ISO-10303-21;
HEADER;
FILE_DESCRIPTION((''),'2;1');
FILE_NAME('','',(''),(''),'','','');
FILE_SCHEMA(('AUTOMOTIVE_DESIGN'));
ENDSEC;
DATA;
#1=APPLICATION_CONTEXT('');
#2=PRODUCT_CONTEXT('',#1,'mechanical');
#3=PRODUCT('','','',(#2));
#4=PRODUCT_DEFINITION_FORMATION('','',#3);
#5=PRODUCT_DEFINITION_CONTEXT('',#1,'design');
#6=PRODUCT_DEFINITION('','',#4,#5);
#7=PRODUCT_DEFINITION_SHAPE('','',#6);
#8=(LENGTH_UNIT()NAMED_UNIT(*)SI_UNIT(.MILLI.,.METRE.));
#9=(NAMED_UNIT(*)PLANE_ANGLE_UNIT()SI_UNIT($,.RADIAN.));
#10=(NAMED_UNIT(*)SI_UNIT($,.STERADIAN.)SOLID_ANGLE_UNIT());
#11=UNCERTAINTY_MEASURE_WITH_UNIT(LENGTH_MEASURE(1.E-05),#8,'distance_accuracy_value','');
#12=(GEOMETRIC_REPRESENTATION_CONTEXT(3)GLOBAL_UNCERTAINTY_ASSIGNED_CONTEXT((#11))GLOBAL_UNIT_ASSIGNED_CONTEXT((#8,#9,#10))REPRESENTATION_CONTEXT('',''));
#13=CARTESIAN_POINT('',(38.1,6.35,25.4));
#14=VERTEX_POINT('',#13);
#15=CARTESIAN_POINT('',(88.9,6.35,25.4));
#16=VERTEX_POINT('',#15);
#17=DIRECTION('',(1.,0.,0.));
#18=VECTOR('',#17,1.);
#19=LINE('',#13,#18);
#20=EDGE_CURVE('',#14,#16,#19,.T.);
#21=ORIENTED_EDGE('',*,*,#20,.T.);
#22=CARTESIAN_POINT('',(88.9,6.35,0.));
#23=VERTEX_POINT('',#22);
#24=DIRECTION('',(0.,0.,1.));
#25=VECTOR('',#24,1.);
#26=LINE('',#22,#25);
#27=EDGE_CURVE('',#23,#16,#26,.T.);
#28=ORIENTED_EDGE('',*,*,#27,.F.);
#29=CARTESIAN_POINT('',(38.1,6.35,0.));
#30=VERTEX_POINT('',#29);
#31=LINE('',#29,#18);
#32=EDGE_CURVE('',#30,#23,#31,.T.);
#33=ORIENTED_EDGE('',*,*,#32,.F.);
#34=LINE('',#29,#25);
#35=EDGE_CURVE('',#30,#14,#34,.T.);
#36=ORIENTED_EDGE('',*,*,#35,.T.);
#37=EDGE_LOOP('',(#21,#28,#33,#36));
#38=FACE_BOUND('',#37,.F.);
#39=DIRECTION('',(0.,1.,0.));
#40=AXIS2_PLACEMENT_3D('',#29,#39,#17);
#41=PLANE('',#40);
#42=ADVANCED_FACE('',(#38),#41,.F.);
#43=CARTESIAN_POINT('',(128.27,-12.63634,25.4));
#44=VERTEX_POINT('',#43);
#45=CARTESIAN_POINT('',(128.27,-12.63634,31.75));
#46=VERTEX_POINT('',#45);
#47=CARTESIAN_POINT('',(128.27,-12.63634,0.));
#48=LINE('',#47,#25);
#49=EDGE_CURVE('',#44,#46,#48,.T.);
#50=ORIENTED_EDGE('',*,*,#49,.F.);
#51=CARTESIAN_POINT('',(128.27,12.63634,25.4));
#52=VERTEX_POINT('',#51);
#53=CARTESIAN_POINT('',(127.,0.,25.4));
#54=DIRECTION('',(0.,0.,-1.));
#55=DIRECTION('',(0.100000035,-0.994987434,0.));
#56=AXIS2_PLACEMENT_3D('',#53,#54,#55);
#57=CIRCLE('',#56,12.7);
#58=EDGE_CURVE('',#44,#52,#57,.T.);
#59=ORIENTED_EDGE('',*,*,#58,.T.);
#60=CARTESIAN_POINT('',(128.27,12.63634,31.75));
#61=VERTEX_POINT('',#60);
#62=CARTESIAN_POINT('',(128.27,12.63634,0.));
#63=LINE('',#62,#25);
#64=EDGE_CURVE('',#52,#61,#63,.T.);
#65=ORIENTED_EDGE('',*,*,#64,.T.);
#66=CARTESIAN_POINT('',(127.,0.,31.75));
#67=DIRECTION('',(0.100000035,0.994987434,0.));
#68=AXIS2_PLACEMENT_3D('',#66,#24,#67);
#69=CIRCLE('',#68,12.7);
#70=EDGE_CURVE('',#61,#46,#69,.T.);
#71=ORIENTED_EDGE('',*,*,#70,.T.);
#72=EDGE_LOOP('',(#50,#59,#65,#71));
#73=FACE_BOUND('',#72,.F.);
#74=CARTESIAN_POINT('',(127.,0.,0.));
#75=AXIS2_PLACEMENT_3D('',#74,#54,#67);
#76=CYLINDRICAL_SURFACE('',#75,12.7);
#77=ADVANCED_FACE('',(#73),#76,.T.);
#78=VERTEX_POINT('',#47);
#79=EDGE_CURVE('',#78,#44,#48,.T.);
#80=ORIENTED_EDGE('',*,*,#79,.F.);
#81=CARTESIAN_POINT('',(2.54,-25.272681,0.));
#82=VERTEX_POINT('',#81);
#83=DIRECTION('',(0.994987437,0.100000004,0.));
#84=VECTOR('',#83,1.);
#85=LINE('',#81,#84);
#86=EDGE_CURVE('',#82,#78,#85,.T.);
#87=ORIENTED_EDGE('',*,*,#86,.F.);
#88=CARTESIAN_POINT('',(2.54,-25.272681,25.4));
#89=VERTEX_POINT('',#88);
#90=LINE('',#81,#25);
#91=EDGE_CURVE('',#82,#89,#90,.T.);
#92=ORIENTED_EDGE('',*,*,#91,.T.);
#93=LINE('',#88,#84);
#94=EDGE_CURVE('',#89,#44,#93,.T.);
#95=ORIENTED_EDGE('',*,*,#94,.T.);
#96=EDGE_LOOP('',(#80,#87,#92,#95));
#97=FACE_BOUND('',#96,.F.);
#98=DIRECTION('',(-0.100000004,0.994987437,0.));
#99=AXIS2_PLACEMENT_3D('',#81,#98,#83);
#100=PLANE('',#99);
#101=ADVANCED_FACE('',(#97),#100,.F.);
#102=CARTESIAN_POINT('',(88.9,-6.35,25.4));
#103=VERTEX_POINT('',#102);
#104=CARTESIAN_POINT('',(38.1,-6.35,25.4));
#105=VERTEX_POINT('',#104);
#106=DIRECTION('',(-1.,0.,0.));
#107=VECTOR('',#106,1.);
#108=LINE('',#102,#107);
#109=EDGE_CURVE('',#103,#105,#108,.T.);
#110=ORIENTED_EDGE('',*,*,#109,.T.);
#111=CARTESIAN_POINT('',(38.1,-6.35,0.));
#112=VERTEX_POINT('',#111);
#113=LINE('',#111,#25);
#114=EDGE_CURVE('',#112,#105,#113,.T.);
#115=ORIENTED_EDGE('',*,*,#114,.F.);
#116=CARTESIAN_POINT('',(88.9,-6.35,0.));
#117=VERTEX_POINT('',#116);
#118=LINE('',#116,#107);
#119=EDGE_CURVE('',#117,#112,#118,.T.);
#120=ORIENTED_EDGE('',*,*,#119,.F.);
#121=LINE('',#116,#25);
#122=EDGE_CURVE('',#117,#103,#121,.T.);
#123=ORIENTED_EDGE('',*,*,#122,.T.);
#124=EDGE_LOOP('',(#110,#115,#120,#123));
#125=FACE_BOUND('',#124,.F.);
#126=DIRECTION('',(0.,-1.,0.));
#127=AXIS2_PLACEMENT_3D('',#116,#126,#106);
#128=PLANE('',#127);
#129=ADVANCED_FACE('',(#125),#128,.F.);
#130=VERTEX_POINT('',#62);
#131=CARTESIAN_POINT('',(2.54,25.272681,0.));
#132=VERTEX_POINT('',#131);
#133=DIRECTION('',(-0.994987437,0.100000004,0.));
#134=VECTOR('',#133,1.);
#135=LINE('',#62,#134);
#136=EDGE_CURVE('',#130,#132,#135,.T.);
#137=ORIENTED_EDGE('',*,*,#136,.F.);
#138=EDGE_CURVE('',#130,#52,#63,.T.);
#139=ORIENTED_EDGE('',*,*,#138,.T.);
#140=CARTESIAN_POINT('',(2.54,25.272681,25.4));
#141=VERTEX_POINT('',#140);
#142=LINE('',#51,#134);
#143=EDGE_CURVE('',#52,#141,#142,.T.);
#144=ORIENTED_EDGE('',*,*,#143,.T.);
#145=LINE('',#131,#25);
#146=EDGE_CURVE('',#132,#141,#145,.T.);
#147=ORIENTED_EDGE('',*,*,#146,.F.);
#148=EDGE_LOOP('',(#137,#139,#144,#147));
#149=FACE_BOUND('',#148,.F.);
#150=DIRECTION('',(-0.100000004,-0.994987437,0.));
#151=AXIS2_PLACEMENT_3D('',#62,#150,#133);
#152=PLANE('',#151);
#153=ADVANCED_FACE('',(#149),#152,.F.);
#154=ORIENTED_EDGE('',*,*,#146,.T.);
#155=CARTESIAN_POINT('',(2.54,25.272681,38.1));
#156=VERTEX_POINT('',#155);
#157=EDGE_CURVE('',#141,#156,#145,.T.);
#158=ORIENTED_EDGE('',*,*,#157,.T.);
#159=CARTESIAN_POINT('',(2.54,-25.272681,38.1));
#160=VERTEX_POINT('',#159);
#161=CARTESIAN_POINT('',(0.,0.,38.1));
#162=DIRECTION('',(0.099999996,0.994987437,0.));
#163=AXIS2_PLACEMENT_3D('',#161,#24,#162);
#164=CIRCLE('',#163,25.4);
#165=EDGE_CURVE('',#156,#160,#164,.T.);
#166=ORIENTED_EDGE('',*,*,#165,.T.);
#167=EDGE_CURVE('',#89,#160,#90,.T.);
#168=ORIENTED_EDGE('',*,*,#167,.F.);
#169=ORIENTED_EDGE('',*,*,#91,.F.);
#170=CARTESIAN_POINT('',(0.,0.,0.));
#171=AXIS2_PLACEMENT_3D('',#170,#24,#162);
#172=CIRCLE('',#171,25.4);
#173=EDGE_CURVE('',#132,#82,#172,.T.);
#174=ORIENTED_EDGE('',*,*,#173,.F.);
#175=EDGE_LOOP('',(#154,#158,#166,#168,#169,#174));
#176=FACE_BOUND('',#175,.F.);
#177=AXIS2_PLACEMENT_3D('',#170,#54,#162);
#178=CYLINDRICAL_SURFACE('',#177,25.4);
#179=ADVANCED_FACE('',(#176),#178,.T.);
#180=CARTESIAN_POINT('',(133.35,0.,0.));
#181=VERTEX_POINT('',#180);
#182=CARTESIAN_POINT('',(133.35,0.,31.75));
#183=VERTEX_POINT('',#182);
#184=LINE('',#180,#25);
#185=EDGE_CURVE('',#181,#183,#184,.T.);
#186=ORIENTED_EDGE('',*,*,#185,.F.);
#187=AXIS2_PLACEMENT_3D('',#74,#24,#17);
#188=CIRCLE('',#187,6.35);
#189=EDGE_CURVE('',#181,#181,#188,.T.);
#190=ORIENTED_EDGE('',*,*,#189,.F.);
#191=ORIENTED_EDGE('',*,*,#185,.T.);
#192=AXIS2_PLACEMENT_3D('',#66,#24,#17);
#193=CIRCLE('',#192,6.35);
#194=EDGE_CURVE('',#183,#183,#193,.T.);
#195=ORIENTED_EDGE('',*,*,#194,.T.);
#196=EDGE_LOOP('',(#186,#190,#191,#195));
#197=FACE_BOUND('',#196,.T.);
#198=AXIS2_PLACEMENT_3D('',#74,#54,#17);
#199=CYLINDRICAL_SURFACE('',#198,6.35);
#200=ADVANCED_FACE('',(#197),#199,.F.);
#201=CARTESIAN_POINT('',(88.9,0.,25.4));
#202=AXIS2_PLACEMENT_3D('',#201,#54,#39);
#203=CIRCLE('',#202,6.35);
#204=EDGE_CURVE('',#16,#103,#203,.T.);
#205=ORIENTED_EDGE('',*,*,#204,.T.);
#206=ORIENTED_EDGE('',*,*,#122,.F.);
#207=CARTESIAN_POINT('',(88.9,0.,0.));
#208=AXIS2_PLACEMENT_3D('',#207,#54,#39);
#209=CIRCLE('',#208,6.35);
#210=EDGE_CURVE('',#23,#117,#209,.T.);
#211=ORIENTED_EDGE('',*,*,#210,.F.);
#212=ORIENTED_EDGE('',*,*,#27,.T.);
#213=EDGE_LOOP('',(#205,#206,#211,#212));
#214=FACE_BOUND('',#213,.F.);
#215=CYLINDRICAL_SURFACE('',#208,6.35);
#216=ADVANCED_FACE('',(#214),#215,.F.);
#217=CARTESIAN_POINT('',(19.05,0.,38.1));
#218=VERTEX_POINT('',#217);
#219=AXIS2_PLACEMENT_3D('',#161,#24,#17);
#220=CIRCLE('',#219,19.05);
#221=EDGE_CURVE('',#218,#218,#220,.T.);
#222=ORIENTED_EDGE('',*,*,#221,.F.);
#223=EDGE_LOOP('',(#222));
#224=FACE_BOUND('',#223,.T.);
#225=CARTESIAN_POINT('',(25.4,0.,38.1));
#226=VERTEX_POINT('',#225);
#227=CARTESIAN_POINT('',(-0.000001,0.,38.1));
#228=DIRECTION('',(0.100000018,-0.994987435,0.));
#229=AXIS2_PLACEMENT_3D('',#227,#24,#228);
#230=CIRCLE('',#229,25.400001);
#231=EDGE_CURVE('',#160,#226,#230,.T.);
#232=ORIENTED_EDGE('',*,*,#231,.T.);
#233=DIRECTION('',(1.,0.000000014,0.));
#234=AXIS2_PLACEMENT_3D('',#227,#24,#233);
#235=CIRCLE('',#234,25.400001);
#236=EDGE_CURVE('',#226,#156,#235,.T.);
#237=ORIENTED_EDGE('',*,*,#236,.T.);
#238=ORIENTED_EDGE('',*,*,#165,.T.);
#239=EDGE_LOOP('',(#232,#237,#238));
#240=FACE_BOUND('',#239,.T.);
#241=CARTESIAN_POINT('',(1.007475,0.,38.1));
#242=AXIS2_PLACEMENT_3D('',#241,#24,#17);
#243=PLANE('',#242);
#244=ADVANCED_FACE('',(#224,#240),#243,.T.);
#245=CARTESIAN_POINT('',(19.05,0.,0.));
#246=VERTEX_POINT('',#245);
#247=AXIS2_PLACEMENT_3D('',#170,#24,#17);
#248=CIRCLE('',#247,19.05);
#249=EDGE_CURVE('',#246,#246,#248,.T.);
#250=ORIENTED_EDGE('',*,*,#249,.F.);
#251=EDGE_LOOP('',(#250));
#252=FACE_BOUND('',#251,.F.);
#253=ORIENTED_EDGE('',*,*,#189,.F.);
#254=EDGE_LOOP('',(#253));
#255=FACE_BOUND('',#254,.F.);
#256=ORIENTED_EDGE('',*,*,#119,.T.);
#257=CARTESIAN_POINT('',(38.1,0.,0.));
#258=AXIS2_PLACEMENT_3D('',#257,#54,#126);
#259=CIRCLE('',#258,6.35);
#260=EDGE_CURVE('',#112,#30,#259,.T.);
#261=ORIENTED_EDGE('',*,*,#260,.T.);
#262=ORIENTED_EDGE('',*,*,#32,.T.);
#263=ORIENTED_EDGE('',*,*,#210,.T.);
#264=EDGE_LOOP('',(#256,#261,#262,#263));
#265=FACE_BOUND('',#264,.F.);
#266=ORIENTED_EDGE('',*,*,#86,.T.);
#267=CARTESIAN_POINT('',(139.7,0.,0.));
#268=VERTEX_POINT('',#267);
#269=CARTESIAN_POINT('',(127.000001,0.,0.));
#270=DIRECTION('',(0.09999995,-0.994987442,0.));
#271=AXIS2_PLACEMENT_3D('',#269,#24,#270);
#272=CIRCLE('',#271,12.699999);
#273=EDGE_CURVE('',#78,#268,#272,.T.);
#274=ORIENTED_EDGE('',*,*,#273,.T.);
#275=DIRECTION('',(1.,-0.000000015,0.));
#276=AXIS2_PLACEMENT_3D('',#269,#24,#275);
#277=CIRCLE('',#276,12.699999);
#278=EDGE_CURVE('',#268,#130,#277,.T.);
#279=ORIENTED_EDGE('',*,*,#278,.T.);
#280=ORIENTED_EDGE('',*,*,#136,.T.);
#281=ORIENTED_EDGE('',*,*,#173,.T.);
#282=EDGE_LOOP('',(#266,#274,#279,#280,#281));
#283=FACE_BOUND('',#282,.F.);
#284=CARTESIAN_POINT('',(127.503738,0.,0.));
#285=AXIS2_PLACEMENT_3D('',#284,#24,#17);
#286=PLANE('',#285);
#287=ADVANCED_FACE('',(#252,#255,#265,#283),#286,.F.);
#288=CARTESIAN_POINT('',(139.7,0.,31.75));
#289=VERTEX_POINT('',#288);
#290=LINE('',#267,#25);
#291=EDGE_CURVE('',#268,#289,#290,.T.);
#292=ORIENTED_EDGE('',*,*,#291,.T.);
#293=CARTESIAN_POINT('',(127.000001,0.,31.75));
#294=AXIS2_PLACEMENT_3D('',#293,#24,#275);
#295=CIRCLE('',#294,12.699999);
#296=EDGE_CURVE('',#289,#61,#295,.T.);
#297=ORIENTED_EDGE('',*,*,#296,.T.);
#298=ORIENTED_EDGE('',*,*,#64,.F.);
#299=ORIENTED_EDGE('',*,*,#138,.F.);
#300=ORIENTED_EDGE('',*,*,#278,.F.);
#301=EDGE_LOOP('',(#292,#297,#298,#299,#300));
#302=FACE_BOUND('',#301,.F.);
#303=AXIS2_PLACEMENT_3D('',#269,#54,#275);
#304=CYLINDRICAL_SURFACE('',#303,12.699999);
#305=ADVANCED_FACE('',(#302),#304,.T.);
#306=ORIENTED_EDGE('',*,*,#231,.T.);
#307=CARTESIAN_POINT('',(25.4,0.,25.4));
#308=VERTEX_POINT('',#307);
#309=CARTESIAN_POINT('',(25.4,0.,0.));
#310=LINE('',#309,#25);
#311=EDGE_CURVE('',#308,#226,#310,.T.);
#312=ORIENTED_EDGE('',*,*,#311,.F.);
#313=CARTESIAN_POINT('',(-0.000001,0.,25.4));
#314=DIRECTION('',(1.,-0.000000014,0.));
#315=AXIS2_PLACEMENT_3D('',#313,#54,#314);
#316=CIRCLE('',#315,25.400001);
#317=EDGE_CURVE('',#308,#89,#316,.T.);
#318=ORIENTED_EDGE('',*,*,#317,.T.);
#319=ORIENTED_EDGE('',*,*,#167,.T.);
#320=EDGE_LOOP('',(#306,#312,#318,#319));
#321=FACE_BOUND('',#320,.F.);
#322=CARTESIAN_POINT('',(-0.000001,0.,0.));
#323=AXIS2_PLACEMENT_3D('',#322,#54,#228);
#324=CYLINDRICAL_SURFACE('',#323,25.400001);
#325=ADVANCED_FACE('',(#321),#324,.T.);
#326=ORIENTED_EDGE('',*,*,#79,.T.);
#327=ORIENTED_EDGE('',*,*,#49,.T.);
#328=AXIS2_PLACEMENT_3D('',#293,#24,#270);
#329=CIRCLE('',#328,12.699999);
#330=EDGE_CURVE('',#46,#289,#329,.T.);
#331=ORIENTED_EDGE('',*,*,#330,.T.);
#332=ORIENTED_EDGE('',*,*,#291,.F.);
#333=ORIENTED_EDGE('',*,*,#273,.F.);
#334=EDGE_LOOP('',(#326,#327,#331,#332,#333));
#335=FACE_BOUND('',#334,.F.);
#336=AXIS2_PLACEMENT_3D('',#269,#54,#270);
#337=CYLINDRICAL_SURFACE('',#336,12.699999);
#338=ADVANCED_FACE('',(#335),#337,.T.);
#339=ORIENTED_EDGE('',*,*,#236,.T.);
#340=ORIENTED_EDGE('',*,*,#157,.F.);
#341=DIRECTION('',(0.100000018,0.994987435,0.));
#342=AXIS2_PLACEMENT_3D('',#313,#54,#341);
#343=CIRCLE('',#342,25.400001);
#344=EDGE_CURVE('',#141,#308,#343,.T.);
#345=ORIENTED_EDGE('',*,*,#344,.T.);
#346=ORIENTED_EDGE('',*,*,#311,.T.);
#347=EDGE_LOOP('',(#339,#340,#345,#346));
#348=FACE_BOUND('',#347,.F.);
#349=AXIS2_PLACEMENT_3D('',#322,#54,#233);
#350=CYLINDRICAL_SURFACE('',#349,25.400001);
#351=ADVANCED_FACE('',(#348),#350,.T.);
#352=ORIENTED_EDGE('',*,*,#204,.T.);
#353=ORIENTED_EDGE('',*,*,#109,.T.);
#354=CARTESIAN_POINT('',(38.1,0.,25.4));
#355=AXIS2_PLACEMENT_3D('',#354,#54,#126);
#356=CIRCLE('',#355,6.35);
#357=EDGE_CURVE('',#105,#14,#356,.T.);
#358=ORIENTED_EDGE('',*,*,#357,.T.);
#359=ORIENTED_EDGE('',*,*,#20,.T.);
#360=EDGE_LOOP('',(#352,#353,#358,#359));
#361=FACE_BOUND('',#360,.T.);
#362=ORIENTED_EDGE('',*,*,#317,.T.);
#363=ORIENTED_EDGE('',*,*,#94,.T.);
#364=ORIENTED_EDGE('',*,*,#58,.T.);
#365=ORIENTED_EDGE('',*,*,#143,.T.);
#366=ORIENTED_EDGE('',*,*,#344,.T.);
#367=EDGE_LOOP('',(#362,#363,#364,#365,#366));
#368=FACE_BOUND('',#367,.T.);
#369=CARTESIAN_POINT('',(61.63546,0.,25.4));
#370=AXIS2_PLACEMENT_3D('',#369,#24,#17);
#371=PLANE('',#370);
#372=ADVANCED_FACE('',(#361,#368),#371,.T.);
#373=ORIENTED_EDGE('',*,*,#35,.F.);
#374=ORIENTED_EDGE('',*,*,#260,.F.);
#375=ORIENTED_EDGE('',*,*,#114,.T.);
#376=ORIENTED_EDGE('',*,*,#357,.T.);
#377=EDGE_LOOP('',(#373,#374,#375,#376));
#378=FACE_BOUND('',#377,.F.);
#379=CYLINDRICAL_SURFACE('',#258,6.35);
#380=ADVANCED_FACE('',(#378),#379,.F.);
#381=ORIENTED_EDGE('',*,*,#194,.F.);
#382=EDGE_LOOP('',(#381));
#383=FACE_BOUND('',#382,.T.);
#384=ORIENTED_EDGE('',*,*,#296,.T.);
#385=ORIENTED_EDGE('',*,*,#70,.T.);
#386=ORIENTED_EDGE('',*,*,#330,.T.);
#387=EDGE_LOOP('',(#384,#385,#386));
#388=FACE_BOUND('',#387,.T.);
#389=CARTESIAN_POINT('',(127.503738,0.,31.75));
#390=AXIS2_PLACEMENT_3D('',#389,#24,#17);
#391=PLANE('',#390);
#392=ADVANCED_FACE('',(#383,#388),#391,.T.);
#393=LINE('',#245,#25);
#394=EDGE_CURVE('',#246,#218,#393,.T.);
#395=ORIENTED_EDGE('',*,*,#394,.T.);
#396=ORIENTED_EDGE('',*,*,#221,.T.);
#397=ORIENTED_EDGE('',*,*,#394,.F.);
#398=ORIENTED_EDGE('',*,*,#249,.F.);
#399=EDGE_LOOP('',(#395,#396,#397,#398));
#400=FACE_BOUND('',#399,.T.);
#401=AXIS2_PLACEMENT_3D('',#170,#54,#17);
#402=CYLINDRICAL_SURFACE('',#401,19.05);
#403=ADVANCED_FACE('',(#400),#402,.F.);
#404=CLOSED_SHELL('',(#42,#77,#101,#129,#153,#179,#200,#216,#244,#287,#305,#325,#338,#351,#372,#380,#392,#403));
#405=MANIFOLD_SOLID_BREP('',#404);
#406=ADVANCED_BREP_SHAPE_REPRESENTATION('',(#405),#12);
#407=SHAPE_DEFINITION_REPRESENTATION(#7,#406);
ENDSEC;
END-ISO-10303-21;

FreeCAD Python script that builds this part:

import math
import FreeCAD as App
import Part
import Sketcher
Q = App.Units.Quantity

doc = App.newDocument("Part")
params = doc.addObject("Spreadsheet::Sheet", "Params")
for row, (alias, value) in enumerate([
    ("sketch1_radius", "1 in"),
    ("sketch1_diameter", "1.5 in"),
    ("pad1_length", "1.5 in"),
    ("sketch2_radius", "1 in"),
    ("sketch2_radius2", "0.5 in"),
    ("sketch2_width", "2 in"),
    ("sketch2_radius3", "0.25 in"),
    ("pad2_length", "1 in"),
    ("sketch3_diameter", "0.5 in"),
    ("sketch3_radius", "0.5 in"),
    ("pad3_length", "1.25 in"),
], start=1):
    params.set(f"A{row}", alias)
    params.set(f"B{row}", "=" + value)
    params.setAlias(f"B{row}", alias)

body = doc.addObject("PartDesign::Body", "Body")

sketch1 = body.newObject("Sketcher::SketchObject", "Sketch")
sketch1.AttachmentSupport = (doc.getObject("XY_Plane"), [""])
sketch1.MapMode = "FlatFace"
sketch1.addGeometry([
    Part.ArcOfCircle(Part.Circle(App.Vector(0, 0, 0), App.Vector(0, 0, 1), 25), math.radians(-84), math.radians(0)),
    Part.ArcOfCircle(Part.Circle(App.Vector(0, 0, 0), App.Vector(0, 0, 1), 25), math.radians(0), math.radians(84)),
    Part.ArcOfCircle(Part.Circle(App.Vector(0, 0, 0), App.Vector(0, 0, 1), 25), math.radians(84), math.radians(276)),
    Part.Circle(App.Vector(0, 0, 0), App.Vector(0, 0, 1), 19),
], False)
sketch1.addConstraint([
    Sketcher.Constraint("Tangent", 0, 2, 1, 1),
    Sketcher.Constraint("Tangent", 1, 2, 2, 1),
    Sketcher.Constraint("Tangent", 2, 2, 0, 1),
    Sketcher.Constraint("Coincident", 0, 3, -1, 1),
    Sketcher.Constraint("Coincident", 3, 3, -1, 1),
    Sketcher.Constraint("PointOnObject", 0, 2, -1),
    Sketcher.Constraint("Vertical", 1, 2, 2, 2),
    Sketcher.Constraint("Radius", 0, Q("1 in")),
    Sketcher.Constraint("Diameter", 3, Q("1.5 in")),
    Sketcher.Constraint("DistanceX", -1, 1, 1, 2, Q("0.1 in")),
])
sketch1.setExpression("Constraints[7]", "Params.sketch1_radius")
sketch1.setExpression("Constraints[8]", "Params.sketch1_diameter")
pad1 = body.newObject("PartDesign::Pad", "Pad")
pad1.Profile = sketch1
pad1.setExpression("Length", "Params.pad1_length")

sketch2 = body.newObject("Sketcher::SketchObject", "Sketch001")
sketch2.AttachmentSupport = (doc.getObject("XY_Plane"), [""])
sketch2.MapMode = "FlatFace"
sketch2.addGeometry([
    Part.ArcOfCircle(Part.Circle(App.Vector(0, 0, 0), App.Vector(0, 0, 1), 25), math.radians(0), math.radians(84)),
    Part.ArcOfCircle(Part.Circle(App.Vector(0, 0, 0), App.Vector(0, 0, 1), 25), math.radians(-84), math.radians(0)),
    Part.LineSegment(App.Vector(3, -25, 0), App.Vector(128, -13, 0)),
    Part.ArcOfCircle(Part.Circle(App.Vector(127, 0, 0), App.Vector(0, 0, 1), 13), math.radians(84), math.radians(276)),
    Part.LineSegment(App.Vector(128, 13, 0), App.Vector(3, 25, 0)),
    Part.LineSegment(App.Vector(89, -6, 0), App.Vector(38, -6, 0)),
    Part.ArcOfCircle(Part.Circle(App.Vector(38, 0, 0), App.Vector(0, 0, 1), 6), math.radians(90), math.radians(270)),
    Part.LineSegment(App.Vector(38, 6, 0), App.Vector(89, 6, 0)),
    Part.ArcOfCircle(Part.Circle(App.Vector(89, 0, 0), App.Vector(0, 0, 1), 6), math.radians(-90), math.radians(90)),
], False)
sketch2.addConstraint([
    Sketcher.Constraint("Tangent", 0, 1, 1, 2),
    Sketcher.Constraint("Tangent", 1, 1, 2, 1),
    Sketcher.Constraint("Tangent", 2, 2, 3, 2),
    Sketcher.Constraint("Tangent", 3, 1, 4, 1),
    Sketcher.Constraint("Tangent", 4, 2, 0, 2),
    Sketcher.Constraint("Tangent", 5, 2, 6, 2),
    Sketcher.Constraint("Tangent", 6, 1, 7, 1),
    Sketcher.Constraint("Tangent", 7, 2, 8, 2),
    Sketcher.Constraint("Tangent", 8, 1, 5, 1),
    Sketcher.Constraint("Horizontal", 5),
    Sketcher.Constraint("Horizontal", 7),
    Sketcher.Constraint("Coincident", 0, 3, -1, 1),
    Sketcher.Constraint("Equal", 0, 1),
    Sketcher.Constraint("PointOnObject", 3, 3, -1),
    Sketcher.Constraint("PointOnObject", 6, 3, -1),
    Sketcher.Constraint("PointOnObject", 0, 1, -1),
    Sketcher.Constraint("Radius", 0, Q("1 in")),
    Sketcher.Constraint("Radius", 3, Q("0.5 in")),
    Sketcher.Constraint("DistanceX", 5, 2, 5, 1, Q("2 in")),
    Sketcher.Constraint("Radius", 6, Q("0.25 in")),
    Sketcher.Constraint("DistanceX", -1, 1, 3, 3, Q("5 in")),
    Sketcher.Constraint("DistanceX", -1, 1, 6, 3, Q("1.5 in")),
])
sketch2.setExpression("Constraints[16]", "Params.sketch2_radius")
sketch2.setExpression("Constraints[17]", "Params.sketch2_radius2")
sketch2.setExpression("Constraints[18]", "Params.sketch2_width")
sketch2.setExpression("Constraints[19]", "Params.sketch2_radius3")
pad2 = body.newObject("PartDesign::Pad", "Pad001")
pad2.Profile = sketch2
pad2.setExpression("Length", "Params.pad2_length")

sketch3 = body.newObject("Sketcher::SketchObject", "Sketch002")
sketch3.AttachmentSupport = (doc.getObject("XY_Plane"), [""])
sketch3.MapMode = "FlatFace"
sketch3.addGeometry([
    Part.ArcOfCircle(Part.Circle(App.Vector(127, 0, 0), App.Vector(0, 0, 1), 13), math.radians(0), math.radians(84)),
    Part.ArcOfCircle(Part.Circle(App.Vector(127, 0, 0), App.Vector(0, 0, 1), 13), math.radians(84), math.radians(276)),
    Part.ArcOfCircle(Part.Circle(App.Vector(127, 0, 0), App.Vector(0, 0, 1), 13), math.radians(-84), math.radians(0)),
    Part.Circle(App.Vector(127, 0, 0), App.Vector(0, 0, 1), 6),
], False)
sketch3.addConstraint([
    Sketcher.Constraint("Tangent", 0, 2, 1, 1),
    Sketcher.Constraint("Tangent", 1, 2, 2, 1),
    Sketcher.Constraint("Tangent", 2, 2, 0, 1),
    Sketcher.Constraint("Coincident", 3, 3, 0, 3),
    Sketcher.Constraint("Symmetric", 0, 2, 1, 2, -1),
    Sketcher.Constraint("PointOnObject", 2, 2, -1),
    Sketcher.Constraint("Diameter", 3, Q("0.5 in")),
    Sketcher.Constraint("Radius", 0, Q("0.5 in")),
    Sketcher.Constraint("DistanceX", -1, 1, 0, 3, Q("5 in")),
    Sketcher.Constraint("DistanceX", -1, 1, 0, 2, Q("5.05 in")),
])
sketch3.setExpression("Constraints[6]", "Params.sketch3_diameter")
sketch3.setExpression("Constraints[7]", "Params.sketch3_radius")
pad3 = body.newObject("PartDesign::Pad", "Pad002")
pad3.Profile = sketch3
pad3.setExpression("Length", "Params.pad3_length")

doc.recompute()
